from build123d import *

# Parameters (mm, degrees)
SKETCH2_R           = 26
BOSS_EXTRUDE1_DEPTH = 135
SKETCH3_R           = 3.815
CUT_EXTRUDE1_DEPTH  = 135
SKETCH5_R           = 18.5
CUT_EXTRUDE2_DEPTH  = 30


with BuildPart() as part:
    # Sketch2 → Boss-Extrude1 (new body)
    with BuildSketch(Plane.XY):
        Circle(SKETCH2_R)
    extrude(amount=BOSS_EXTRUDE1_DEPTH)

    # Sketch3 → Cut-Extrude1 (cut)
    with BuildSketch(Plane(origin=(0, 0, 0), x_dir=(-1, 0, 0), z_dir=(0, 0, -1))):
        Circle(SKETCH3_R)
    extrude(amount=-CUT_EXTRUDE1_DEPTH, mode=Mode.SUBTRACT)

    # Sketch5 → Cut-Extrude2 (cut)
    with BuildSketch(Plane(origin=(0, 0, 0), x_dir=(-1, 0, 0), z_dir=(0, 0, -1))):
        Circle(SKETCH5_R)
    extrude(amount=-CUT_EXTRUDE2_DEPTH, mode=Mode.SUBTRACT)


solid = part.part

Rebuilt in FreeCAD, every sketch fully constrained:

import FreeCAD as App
import Part
import Sketcher
from FreeCAD import Vector
Q = App.Units.Quantity

doc = App.newDocument("Part")
body = doc.addObject("PartDesign::Body", "Body")

sketch1 = doc.addObject("Sketcher::SketchObject", "Sketch")
body.addObject(sketch1)
sketch1.AttachmentSupport = (doc.XY_Plane, [""])
sketch1.MapMode = "FlatFace"
sketch1.addGeometry(Part.Circle(Vector(0, 0, 0), Vector(0, 0, 1), 26), False)
sketch1.addConstraint([
    Sketcher.Constraint("Coincident", 0, 3, -1, 1),
    Sketcher.Constraint("Diameter", 0, Q("52 mm")),
])
pad1 = doc.addObject("PartDesign::Pad", "Pad")
body.addObject(pad1)
pad1.Profile = sketch1
pad1.Length = 135

sketch2 = doc.addObject("Sketcher::SketchObject", "Sketch001")
body.addObject(sketch2)
sketch2.AttachmentSupport = (doc.XY_Plane, [""])
sketch2.MapMode = "FlatFace"
sketch2.addGeometry(Part.Circle(Vector(0, 0, 0), Vector(0, 0, 1), 3.8), False)
sketch2.addConstraint([
    Sketcher.Constraint("Coincident", 0, 3, -1, 1),
    Sketcher.Constraint("Diameter", 0, Q("7.63 mm")),
])
pocket1 = doc.addObject("PartDesign::Pocket", "Pocket")
body.addObject(pocket1)
pocket1.Profile = sketch2
pocket1.Length = 135
pocket1.Reversed = True

sketch3 = doc.addObject("Sketcher::SketchObject", "Sketch002")
body.addObject(sketch3)
sketch3.AttachmentSupport = (doc.XY_Plane, [""])
sketch3.MapMode = "FlatFace"
sketch3.addGeometry(Part.Circle(Vector(0, 0, 0), Vector(0, 0, 1), 18), False)
sketch3.addConstraint([
    Sketcher.Constraint("Coincident", 0, 3, -1, 1),
    Sketcher.Constraint("Diameter", 0, Q("37 mm")),
])
pocket2 = doc.addObject("PartDesign::Pocket", "Pocket001")
body.addObject(pocket2)
pocket2.Profile = sketch3
pocket2.Length = 30
pocket2.Reversed = True

doc.recompute()
